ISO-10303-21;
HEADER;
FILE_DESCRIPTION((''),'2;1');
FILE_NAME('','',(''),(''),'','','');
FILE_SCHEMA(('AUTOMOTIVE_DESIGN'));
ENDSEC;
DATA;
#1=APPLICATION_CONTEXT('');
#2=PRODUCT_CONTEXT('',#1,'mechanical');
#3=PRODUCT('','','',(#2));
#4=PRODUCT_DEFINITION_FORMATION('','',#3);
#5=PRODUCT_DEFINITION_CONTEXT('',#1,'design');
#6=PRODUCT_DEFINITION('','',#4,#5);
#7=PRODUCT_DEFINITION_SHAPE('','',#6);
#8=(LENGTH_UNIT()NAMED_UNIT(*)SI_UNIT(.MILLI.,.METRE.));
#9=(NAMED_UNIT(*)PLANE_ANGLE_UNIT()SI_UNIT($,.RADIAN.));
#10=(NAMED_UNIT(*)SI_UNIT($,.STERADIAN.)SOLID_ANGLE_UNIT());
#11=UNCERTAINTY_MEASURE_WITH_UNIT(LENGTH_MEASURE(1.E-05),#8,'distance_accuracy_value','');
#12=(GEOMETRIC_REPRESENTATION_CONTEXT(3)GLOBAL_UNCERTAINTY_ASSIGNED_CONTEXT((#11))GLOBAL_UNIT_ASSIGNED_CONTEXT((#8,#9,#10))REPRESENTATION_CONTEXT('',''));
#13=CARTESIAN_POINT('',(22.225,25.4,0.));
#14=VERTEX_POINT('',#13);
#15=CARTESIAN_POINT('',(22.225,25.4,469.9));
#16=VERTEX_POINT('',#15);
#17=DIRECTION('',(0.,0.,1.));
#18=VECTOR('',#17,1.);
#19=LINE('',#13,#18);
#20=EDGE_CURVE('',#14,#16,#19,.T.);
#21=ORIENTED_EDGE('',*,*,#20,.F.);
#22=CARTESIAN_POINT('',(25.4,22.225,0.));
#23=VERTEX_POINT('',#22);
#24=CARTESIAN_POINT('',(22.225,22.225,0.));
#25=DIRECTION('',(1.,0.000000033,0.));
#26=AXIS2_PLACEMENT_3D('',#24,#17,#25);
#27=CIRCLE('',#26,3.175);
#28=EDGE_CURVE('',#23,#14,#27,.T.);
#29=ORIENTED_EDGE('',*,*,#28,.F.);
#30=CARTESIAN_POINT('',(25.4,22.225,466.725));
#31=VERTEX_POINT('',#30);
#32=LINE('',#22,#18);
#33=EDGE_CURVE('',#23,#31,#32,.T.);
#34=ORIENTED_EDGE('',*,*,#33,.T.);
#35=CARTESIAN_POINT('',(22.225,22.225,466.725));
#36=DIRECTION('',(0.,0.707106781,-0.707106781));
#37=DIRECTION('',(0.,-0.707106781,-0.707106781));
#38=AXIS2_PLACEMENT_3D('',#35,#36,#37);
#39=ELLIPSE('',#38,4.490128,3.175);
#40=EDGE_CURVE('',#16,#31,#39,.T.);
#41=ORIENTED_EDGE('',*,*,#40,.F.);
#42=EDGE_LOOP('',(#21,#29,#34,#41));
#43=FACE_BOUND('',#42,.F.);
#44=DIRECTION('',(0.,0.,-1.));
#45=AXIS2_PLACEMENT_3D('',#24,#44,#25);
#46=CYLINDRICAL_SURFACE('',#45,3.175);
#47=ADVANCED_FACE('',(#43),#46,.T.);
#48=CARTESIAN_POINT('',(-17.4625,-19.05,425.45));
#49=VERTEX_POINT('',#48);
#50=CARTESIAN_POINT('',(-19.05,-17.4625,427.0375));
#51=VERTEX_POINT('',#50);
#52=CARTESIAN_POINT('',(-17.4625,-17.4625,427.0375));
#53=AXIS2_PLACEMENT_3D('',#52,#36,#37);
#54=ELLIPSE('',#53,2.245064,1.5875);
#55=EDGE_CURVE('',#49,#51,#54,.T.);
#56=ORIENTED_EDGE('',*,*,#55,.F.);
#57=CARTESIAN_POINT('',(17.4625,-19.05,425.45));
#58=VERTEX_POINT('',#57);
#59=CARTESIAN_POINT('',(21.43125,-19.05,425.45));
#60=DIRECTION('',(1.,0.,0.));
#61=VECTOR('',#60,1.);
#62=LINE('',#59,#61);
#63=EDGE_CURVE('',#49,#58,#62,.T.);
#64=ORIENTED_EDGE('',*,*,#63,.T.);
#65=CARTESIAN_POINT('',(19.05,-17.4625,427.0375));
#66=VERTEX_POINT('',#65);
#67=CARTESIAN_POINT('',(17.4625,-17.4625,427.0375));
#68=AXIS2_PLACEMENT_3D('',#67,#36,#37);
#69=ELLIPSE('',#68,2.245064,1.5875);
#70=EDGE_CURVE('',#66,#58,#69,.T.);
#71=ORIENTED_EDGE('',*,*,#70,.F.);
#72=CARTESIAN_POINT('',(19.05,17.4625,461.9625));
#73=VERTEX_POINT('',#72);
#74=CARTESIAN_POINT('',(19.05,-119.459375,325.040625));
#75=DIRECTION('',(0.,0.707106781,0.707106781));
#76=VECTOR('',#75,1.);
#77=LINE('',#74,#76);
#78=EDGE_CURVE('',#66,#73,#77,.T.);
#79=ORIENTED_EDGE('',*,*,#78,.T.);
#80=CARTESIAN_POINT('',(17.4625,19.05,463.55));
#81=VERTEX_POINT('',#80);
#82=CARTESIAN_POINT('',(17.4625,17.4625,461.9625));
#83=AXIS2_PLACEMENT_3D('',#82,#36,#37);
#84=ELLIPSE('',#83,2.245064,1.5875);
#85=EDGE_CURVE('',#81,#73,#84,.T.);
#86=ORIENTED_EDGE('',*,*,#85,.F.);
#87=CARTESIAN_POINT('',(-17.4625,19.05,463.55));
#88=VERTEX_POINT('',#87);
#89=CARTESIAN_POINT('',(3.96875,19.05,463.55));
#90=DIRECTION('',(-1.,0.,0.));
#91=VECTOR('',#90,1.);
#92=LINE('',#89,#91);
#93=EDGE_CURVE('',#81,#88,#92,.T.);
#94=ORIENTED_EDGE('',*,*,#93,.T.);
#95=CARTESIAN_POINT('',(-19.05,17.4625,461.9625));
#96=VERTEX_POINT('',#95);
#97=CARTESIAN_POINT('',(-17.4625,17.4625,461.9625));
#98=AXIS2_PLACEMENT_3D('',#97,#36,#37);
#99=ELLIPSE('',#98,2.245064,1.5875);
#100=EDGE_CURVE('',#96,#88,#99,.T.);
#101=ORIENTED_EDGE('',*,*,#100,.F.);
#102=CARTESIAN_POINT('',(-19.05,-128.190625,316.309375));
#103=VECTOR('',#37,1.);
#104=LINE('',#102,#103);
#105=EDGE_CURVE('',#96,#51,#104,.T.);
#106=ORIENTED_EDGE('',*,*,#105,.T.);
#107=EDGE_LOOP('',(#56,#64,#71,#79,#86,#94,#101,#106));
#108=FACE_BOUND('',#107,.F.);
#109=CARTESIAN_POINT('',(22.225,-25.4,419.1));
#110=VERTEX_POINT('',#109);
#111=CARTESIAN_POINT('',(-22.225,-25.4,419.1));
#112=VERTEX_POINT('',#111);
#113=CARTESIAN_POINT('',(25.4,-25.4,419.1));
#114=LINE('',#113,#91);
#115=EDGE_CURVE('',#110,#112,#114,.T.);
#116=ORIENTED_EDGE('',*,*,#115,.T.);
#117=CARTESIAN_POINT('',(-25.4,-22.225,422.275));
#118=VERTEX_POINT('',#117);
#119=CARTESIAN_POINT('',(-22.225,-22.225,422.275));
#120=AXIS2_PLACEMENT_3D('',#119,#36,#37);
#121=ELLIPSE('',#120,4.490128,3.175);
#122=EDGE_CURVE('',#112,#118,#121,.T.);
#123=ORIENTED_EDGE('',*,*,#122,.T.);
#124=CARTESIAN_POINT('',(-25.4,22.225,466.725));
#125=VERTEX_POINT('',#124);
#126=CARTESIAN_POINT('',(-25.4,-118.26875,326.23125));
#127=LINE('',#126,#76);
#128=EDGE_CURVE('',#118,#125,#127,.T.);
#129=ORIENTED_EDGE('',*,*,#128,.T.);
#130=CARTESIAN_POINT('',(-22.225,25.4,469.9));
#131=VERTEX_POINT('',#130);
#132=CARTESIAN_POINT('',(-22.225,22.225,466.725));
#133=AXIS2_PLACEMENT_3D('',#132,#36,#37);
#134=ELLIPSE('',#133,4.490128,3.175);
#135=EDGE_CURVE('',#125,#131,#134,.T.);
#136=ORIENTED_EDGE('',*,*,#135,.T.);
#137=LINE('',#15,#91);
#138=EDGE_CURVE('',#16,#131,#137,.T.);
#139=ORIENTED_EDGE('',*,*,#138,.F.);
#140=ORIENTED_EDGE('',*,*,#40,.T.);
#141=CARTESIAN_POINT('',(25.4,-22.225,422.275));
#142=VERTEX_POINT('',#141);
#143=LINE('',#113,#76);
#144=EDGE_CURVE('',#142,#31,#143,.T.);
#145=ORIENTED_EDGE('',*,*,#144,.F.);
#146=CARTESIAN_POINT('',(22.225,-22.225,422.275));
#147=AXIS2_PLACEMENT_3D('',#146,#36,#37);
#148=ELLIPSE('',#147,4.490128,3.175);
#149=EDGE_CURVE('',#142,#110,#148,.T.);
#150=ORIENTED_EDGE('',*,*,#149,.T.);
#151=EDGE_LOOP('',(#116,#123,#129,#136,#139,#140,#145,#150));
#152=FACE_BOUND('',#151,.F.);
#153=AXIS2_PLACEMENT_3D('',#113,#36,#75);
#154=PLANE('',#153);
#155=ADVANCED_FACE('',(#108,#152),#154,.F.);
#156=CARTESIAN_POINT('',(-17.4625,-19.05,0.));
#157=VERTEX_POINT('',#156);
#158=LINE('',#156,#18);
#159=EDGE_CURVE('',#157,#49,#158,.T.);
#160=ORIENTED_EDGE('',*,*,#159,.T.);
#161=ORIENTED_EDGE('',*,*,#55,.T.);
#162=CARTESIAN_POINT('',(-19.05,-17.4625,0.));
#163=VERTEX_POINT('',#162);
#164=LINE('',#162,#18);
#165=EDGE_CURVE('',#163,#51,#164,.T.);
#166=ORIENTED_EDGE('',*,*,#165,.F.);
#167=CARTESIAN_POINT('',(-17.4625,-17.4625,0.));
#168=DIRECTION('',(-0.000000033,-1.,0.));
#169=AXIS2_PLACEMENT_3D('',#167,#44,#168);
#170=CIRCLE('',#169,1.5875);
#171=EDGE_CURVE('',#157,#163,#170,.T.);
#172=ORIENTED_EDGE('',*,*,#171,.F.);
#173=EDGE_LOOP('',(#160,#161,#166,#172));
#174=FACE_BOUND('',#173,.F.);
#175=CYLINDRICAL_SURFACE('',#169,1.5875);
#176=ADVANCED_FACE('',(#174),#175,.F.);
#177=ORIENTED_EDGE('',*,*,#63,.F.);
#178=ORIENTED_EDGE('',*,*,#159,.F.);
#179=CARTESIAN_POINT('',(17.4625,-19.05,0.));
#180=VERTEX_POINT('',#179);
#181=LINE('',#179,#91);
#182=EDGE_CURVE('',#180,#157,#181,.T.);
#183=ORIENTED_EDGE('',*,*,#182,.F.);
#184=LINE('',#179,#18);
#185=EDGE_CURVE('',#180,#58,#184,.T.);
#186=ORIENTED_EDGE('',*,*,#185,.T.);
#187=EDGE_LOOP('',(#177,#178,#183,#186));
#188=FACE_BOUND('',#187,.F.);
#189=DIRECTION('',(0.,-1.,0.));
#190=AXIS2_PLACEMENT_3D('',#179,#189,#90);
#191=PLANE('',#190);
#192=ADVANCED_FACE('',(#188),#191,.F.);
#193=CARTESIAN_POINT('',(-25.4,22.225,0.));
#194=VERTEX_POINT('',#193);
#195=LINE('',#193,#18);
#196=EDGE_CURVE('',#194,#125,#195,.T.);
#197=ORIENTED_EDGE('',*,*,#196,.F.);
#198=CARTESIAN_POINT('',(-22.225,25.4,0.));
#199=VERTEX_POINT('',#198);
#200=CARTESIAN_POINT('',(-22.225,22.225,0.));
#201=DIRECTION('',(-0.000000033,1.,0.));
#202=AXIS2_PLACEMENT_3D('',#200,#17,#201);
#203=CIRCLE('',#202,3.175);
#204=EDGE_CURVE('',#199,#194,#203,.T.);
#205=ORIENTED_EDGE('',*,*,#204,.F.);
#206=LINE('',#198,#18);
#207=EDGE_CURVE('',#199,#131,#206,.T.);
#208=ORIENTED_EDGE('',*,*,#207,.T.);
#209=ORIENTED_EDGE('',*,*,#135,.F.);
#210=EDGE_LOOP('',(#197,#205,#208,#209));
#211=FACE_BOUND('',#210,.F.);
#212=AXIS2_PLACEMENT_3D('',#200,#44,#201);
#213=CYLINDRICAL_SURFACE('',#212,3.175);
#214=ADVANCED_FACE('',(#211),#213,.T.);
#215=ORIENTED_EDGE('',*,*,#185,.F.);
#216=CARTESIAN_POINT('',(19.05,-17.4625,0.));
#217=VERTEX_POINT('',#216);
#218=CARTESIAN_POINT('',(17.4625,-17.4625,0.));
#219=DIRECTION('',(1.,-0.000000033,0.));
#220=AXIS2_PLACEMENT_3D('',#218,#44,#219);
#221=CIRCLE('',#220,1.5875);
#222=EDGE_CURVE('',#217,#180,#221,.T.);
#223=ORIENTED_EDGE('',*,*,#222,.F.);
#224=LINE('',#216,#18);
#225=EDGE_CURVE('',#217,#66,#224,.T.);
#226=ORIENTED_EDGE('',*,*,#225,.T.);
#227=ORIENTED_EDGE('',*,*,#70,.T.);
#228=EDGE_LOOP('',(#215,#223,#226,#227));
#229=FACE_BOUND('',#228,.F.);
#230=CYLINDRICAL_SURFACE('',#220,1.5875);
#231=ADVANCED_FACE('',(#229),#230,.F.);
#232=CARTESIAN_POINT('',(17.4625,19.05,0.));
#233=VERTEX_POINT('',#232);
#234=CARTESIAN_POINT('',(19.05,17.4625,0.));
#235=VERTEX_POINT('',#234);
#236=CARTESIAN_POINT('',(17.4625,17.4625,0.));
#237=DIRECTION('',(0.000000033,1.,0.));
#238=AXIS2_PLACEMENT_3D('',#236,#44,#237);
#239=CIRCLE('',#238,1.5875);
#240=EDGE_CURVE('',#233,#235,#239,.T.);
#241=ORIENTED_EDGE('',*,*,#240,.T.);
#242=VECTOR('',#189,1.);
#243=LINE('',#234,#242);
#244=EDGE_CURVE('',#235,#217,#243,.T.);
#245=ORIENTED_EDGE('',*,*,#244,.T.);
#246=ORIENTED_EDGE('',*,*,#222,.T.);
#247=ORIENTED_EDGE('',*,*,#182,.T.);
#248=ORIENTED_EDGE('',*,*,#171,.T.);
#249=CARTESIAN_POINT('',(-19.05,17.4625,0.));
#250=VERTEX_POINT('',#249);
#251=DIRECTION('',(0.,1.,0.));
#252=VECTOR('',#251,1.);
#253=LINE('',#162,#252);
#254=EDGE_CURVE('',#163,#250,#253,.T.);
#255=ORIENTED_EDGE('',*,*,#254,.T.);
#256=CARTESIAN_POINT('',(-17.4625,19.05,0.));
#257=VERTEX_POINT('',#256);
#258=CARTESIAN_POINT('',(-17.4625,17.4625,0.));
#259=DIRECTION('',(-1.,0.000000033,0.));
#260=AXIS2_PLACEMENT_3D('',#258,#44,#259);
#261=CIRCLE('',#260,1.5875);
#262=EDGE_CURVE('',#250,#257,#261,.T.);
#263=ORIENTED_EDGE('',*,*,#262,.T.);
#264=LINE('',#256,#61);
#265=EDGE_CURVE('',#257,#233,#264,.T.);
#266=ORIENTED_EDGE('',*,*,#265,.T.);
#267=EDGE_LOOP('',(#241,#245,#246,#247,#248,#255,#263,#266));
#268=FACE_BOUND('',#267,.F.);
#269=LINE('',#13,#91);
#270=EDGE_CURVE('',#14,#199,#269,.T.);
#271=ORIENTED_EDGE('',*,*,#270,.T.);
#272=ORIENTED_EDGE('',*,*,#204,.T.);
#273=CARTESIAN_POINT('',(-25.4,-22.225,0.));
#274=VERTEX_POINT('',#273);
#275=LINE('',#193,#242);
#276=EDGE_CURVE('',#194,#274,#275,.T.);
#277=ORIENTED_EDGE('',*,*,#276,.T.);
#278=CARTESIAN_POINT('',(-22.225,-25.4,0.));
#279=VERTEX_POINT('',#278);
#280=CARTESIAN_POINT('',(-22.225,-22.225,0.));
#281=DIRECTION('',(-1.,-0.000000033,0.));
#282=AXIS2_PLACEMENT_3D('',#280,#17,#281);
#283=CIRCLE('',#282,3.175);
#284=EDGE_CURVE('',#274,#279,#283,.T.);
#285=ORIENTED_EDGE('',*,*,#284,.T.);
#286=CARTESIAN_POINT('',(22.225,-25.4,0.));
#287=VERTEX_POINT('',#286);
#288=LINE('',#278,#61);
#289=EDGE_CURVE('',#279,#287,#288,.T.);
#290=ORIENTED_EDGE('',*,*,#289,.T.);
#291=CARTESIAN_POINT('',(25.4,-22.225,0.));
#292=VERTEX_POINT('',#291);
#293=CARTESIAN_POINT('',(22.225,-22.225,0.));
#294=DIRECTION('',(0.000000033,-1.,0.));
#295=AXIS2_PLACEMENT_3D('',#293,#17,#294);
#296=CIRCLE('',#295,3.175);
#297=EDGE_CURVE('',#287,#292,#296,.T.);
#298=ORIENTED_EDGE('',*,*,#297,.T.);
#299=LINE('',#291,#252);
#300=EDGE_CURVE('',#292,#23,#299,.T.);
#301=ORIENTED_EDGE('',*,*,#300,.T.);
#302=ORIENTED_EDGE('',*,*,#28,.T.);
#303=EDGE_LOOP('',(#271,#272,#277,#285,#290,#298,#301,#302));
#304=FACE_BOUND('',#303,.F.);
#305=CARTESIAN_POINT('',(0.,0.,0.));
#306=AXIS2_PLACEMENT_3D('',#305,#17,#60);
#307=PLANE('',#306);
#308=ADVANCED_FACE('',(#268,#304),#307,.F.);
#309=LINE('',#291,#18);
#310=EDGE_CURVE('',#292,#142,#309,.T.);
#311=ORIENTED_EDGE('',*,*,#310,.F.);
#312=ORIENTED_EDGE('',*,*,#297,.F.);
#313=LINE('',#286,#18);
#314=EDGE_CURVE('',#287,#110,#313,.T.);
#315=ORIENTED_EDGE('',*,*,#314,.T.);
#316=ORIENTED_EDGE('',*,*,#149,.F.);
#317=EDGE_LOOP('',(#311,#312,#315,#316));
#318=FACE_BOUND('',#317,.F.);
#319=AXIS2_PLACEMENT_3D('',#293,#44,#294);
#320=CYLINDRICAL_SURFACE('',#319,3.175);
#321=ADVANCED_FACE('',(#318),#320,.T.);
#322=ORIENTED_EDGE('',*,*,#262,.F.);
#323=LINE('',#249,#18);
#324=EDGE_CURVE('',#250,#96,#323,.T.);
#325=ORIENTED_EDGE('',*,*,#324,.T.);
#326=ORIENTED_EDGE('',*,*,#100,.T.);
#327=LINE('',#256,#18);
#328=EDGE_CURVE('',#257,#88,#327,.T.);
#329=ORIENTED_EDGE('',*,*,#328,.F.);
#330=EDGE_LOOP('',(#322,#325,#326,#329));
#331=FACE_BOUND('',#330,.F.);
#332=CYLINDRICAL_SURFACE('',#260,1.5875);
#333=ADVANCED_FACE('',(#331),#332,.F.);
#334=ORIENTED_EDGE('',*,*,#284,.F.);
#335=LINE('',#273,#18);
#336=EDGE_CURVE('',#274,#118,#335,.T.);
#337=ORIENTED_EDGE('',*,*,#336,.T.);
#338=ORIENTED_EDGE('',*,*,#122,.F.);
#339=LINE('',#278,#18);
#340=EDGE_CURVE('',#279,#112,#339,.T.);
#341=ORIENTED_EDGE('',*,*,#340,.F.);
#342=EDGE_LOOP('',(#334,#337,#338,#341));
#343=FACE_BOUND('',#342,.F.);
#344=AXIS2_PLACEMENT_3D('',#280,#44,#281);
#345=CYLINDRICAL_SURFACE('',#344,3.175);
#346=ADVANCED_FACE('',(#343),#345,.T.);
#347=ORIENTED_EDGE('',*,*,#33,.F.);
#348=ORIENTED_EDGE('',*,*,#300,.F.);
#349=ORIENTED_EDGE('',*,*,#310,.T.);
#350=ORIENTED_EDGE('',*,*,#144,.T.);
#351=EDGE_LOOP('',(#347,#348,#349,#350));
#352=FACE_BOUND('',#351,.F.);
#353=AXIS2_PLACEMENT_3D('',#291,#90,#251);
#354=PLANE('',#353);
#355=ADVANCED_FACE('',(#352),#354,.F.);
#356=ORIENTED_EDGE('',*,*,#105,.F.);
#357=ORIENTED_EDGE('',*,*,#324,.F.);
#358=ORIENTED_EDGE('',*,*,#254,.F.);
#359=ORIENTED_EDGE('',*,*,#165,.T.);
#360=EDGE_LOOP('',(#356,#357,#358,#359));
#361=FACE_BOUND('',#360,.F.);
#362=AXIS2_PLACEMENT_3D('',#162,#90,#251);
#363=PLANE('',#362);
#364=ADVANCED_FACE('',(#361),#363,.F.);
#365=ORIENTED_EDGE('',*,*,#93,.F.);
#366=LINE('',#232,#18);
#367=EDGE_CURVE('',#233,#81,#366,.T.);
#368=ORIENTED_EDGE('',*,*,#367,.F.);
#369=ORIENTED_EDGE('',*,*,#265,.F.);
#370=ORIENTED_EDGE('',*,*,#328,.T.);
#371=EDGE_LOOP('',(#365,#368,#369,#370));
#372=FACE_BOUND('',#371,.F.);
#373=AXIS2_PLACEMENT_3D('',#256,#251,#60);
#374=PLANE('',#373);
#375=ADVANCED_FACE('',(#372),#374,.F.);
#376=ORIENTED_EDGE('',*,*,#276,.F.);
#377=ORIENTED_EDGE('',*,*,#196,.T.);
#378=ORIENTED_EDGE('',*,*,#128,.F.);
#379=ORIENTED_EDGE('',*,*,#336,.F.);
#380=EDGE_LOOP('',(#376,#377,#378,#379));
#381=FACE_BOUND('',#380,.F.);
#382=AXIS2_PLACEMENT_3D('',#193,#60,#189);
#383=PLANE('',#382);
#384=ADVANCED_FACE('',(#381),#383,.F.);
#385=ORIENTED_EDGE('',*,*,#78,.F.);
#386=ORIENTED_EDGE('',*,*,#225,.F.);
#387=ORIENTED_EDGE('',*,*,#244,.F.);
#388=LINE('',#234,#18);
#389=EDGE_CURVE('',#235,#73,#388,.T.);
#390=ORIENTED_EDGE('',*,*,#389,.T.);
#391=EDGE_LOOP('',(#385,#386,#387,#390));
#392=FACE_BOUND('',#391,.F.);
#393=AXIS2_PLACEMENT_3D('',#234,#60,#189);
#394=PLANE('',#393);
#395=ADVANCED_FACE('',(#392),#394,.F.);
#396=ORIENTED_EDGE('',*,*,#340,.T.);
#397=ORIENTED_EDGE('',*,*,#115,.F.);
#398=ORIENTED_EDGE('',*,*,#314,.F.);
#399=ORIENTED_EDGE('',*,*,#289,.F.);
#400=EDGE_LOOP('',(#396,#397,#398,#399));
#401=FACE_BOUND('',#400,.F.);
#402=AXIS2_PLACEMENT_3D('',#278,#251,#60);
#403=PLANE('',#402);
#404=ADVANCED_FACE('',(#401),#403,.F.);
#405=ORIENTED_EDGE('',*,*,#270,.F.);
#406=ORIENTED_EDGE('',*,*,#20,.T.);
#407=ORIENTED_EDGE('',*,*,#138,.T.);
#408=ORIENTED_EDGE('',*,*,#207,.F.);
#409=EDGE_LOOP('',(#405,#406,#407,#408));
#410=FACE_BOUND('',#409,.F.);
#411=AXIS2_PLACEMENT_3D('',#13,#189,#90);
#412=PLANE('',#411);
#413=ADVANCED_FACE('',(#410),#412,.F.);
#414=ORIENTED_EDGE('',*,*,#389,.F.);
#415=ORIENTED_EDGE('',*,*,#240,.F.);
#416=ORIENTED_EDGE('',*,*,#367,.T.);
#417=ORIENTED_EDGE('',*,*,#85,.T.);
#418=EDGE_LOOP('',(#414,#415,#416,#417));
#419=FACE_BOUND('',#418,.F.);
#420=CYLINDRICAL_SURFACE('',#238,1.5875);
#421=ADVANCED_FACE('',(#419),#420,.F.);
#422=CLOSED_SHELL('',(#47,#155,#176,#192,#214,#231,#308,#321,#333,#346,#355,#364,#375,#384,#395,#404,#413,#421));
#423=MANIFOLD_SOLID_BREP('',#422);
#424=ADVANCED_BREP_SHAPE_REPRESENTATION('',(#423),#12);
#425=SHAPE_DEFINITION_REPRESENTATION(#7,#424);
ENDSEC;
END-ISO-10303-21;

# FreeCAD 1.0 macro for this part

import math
import FreeCAD as App
import Part
import Sketcher

V = App.Vector
Q = App.Units.Quantity

doc = App.newDocument("Part")
body = doc.addObject("PartDesign::Body", "Body")

# Sketch on XY plane
sketch1 = body.newObject("Sketcher::SketchObject", "Sketch")
sketch1.AttachmentSupport = (doc.getObject("XY_Plane"), [""])
sketch1.MapMode = "FlatFace"
sketch1.addGeometry([
    Part.LineSegment(V(22.225, 25.4, 0), V(-22.225, 25.4, 0)),  # 0
    Part.ArcOfCircle(Part.Circle(V(-22.225, 22.225, 0), V(0, 0, 1), 3.175), math.radians(90.000002), math.radians(179.999998)),  # 1
    Part.LineSegment(V(-25.4, 22.225, 0), V(-25.4, -22.225, 0)),  # 2
    Part.ArcOfCircle(Part.Circle(V(-22.225, -22.225, 0), V(0, 0, 1), 3.175), math.radians(-179.999998), math.radians(-90.000002)),  # 3
    Part.LineSegment(V(-22.225, -25.4, 0), V(22.225, -25.4, 0)),  # 4
    Part.ArcOfCircle(Part.Circle(V(22.225, -22.225, 0), V(0, 0, 1), 3.175), math.radians(-89.999998), math.radians(-0.000002)),  # 5
    Part.LineSegment(V(25.4, -22.225, 0), V(25.4, 22.225, 0)),  # 6
    Part.ArcOfCircle(Part.Circle(V(22.225, 22.225, 0), V(0, 0, 1), 3.175), math.radians(0.000002), math.radians(89.999998)),  # 7
    Part.LineSegment(V(-19.05, -17.4625, 0), V(-19.05, 17.4625, 0)),  # 8
    Part.ArcOfCircle(Part.Circle(V(-17.4625, 17.4625, 0), V(0, 0, 1), 1.5875), math.radians(90.000002), math.radians(179.999998)),  # 9
    Part.LineSegment(V(-17.4625, 19.05, 0), V(17.4625, 19.05, 0)),  # 10
    Part.ArcOfCircle(Part.Circle(V(17.4625, 17.4625, 0), V(0, 0, 1), 1.5875), math.radians(0.000002), math.radians(89.999998)),  # 11
    Part.LineSegment(V(19.05, 17.4625, 0), V(19.05, -17.4625, 0)),  # 12
    Part.ArcOfCircle(Part.Circle(V(17.4625, -17.4625, 0), V(0, 0, 1), 1.5875), math.radians(-89.999998), math.radians(-0.000002)),  # 13
    Part.LineSegment(V(17.4625, -19.05, 0), V(-17.4625, -19.05, 0)),  # 14
    Part.ArcOfCircle(Part.Circle(V(-17.4625, -17.4625, 0), V(0, 0, 1), 1.5875), math.radians(-179.999998), math.radians(-90.000002)),  # 15
], False)
sketch1.addConstraint([
    Sketcher.Constraint("Tangent", 0, 2, 1, 1),
    Sketcher.Constraint("Tangent", 1, 2, 2, 1),
    Sketcher.Constraint("Tangent", 2, 2, 3, 1),
    Sketcher.Constraint("Tangent", 3, 2, 4, 1),
    Sketcher.Constraint("Tangent", 4, 2, 5, 1),
    Sketcher.Constraint("Tangent", 5, 2, 6, 1),
    Sketcher.Constraint("Tangent", 6, 2, 7, 1),
    Sketcher.Constraint("Tangent", 7, 2, 0, 1),
    Sketcher.Constraint("Tangent", 8, 2, 9, 2),
    Sketcher.Constraint("Tangent", 9, 1, 10, 1),
    Sketcher.Constraint("Tangent", 10, 2, 11, 2),
    Sketcher.Constraint("Tangent", 11, 1, 12, 1),
    Sketcher.Constraint("Tangent", 12, 2, 13, 2),
    Sketcher.Constraint("Tangent", 13, 1, 14, 1),
    Sketcher.Constraint("Tangent", 14, 2, 15, 2),
    Sketcher.Constraint("Tangent", 15, 1, 8, 1),
    Sketcher.Constraint("Horizontal", 0),
    Sketcher.Constraint("Vertical", 2),
    Sketcher.Constraint("Horizontal", 4),
    Sketcher.Constraint("Vertical", 6),
    Sketcher.Constraint("Vertical", 8),
    Sketcher.Constraint("Horizontal", 10),
    Sketcher.Constraint("Vertical", 12),
    Sketcher.Constraint("Horizontal", 14),
    Sketcher.Constraint("Equal", 1, 3),
    Sketcher.Constraint("Equal", 3, 5),
    Sketcher.Constraint("Equal", 5, 7),
    Sketcher.Constraint("Equal", 9, 11),
    Sketcher.Constraint("Equal", 11, 13),
    Sketcher.Constraint("Equal", 13, 15),
    Sketcher.Constraint("Symmetric", 1, 3, 5, 3, -1, 1),
    Sketcher.Constraint("Symmetric", 9, 3, 13, 3, -1, 1),
    Sketcher.Constraint("Equal", 4, 2),
    Sketcher.Constraint("Equal", 14, 8),
    Sketcher.Constraint("DistanceY", -1, 1, 0, 2, Q("1 in")),
    Sketcher.Constraint("Radius", 1, Q("0.125 in")),
    Sketcher.Constraint("Radius", 9, Q("0.0625 in")),
    Sketcher.Constraint("DistanceX", 10, 1, 10, 2, Q("1.375 in")),
])
pad1 = body.newObject("PartDesign::Pad", "Pad")
pad1.Profile = sketch1
pad1.Length = Q("18.5 in")

# Sketch on YZ plane
sketch2 = body.newObject("Sketcher::SketchObject", "Sketch001")
sketch2.AttachmentSupport = (doc.getObject("YZ_Plane"), [""])
sketch2.MapMode = "FlatFace"
sketch2.AttachmentOffset = App.Placement(V(0, 0, 1 * 25.4), App.Rotation())
sketch2.addGeometry([
    Part.LineSegment(V(-25.4, 419.1, 0), V(25.4, 469.9, 0)),
    Part.LineSegment(V(25.4, 469.9, 0), V(-25.4, 469.9, 0)),
    Part.LineSegment(V(-25.4, 469.9, 0), V(-25.4, 419.1, 0)),
], False)
sketch2.addConstraint([
    Sketcher.Constraint("Coincident", 0, 2, 1, 1),
    Sketcher.Constraint("Coincident", 1, 2, 2, 1),
    Sketcher.Constraint("Coincident", 2, 2, 0, 1),
    Sketcher.Constraint("Horizontal", 1),
    Sketcher.Constraint("Vertical", 2),
    Sketcher.Constraint("Equal", 1, 2),
    Sketcher.Constraint("DistanceX", 1, 2, 1, 1, Q("2 in")),
    Sketcher.Constraint("DistanceX", -1, 1, 0, 2, Q("1 in")),
    Sketcher.Constraint("DistanceY", -1, 1, 0, 2, Q("18.5 in")),
])
pocket1 = body.newObject("PartDesign::Pocket", "Pocket")
pocket1.Profile = sketch2
pocket1.Type = "ThroughAll"

doc.recompute()
